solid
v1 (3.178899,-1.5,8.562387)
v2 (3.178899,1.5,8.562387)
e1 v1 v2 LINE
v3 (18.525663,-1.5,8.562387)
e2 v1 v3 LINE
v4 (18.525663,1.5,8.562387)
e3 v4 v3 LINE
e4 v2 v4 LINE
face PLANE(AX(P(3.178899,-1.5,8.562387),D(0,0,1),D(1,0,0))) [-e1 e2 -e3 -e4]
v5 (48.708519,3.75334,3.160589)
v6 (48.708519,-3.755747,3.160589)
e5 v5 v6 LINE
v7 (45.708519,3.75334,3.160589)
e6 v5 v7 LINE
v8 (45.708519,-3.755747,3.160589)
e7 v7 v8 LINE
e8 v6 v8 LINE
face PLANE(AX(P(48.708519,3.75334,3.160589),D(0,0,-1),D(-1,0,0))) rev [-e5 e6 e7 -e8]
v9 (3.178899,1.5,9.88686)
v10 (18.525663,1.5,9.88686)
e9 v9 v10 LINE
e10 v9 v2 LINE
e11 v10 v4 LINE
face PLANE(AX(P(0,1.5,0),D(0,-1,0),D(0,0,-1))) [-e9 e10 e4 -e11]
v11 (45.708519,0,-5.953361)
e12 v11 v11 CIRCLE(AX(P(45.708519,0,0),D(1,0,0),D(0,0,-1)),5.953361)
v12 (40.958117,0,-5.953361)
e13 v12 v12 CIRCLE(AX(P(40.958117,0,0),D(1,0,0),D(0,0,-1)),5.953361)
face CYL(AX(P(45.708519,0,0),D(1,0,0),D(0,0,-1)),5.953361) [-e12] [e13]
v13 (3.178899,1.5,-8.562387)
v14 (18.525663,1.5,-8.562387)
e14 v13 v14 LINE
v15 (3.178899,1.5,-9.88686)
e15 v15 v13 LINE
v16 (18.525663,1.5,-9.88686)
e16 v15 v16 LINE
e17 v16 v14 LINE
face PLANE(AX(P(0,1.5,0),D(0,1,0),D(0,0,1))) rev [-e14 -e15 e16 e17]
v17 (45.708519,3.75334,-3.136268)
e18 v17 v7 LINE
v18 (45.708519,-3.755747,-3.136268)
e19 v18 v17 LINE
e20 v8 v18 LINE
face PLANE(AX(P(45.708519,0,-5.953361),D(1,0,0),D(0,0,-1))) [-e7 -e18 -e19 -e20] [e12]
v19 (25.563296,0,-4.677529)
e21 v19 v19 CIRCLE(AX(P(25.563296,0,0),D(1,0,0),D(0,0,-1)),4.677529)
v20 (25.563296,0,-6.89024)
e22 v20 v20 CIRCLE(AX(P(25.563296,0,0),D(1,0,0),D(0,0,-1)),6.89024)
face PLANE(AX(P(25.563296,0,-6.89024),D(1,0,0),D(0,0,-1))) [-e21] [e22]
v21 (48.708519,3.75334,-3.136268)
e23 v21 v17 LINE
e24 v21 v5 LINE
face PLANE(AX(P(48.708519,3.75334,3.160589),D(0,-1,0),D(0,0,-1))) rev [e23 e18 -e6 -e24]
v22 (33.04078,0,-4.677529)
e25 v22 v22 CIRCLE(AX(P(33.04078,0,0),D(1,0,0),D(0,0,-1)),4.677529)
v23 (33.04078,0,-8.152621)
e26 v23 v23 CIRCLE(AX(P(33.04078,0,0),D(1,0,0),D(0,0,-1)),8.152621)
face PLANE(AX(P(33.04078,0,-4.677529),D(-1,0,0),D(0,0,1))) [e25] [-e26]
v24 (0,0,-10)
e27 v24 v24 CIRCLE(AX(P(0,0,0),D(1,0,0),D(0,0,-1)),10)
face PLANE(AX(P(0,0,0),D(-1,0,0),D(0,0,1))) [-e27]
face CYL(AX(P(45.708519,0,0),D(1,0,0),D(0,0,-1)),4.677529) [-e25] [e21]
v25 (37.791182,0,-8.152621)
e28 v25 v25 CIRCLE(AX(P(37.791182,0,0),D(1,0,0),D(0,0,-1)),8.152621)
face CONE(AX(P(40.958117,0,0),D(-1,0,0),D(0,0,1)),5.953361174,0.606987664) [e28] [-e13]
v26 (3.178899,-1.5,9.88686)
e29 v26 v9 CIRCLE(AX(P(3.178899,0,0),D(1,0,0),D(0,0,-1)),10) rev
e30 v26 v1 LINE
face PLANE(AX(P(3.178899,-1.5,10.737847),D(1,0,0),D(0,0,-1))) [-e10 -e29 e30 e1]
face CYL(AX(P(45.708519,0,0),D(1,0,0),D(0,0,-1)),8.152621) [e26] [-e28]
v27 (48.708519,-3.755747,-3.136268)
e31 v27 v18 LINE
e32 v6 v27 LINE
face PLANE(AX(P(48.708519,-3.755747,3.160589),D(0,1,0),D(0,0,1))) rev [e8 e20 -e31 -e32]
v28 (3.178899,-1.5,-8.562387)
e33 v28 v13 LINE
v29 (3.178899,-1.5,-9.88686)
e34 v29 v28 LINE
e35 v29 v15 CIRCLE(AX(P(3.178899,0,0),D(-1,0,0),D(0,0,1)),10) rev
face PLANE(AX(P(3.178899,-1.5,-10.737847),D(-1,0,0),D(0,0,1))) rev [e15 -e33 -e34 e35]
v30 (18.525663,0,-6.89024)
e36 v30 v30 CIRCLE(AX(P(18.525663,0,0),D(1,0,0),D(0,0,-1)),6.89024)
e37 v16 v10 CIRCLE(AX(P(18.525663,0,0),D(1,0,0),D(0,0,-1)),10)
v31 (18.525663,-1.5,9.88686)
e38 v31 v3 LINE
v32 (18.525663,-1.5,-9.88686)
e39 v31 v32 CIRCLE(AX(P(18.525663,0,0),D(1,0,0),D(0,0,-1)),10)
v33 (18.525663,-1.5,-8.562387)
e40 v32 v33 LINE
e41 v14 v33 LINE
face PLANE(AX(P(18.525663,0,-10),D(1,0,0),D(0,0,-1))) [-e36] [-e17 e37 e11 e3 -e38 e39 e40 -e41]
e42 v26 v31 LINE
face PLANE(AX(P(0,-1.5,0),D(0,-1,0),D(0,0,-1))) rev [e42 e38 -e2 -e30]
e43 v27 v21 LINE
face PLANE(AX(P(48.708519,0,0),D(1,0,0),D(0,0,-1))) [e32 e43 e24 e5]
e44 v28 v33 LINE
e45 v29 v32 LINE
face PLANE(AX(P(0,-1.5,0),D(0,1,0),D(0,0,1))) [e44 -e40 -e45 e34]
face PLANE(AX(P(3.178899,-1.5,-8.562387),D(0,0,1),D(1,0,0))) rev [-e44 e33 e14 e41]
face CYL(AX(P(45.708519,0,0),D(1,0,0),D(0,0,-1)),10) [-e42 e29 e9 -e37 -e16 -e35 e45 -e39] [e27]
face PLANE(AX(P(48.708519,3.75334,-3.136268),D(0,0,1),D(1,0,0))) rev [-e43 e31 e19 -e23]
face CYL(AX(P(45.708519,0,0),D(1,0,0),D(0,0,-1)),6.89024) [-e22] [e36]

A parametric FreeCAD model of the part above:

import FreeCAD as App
import Part
import Sketcher

V = App.Vector
Q = App.Units.Quantity

doc = App.newDocument("Part")
body = doc.addObject("PartDesign::Body", "Body")

sketch1 = body.newObject("Sketcher::SketchObject", "Sketch")
sketch1.AttachmentSupport = (doc.getObject("XZ_Plane"), [""])
sketch1.MapMode = "FlatFace"
sketch1.addGeometry([
    Part.LineSegment(V(0, -10, 0), V(0, 0, 0)),
    Part.LineSegment(V(0, 0, 0), V(45.7, 0, 0)),
    Part.LineSegment(V(45.7, 0, 0), V(45.7, -6, 0)),
    Part.LineSegment(V(45.7, -6, 0), V(41, -6, 0)),
    Part.LineSegment(V(41, -6, 0), V(37.8, -8.2, 0)),
    Part.LineSegment(V(37.8, -8.2, 0), V(33, -8.2, 0)),
    Part.LineSegment(V(33, -8.2, 0), V(33, -4.7, 0)),
    Part.LineSegment(V(33, -4.7, 0), V(25.6, -4.7, 0)),
    Part.LineSegment(V(25.6, -4.7, 0), V(25.6, -6.9, 0)),
    Part.LineSegment(V(25.6, -6.9, 0), V(18.5, -6.9, 0)),
    Part.LineSegment(V(18.5, -6.9, 0), V(18.5, -10, 0)),
    Part.LineSegment(V(18.5, -10, 0), V(0, -10, 0)),
], False)
sketch1.addConstraint([
    Sketcher.Constraint("Coincident", 0, 2, 1, 1),
    Sketcher.Constraint("Coincident", 1, 2, 2, 1),
    Sketcher.Constraint("Coincident", 2, 2, 3, 1),
    Sketcher.Constraint("Coincident", 3, 2, 4, 1),
    Sketcher.Constraint("Coincident", 4, 2, 5, 1),
    Sketcher.Constraint("Coincident", 5, 2, 6, 1),
    Sketcher.Constraint("Coincident", 6, 2, 7, 1),
    Sketcher.Constraint("Coincident", 7, 2, 8, 1),
    Sketcher.Constraint("Coincident", 8, 2, 9, 1),
    Sketcher.Constraint("Coincident", 9, 2, 10, 1),
    Sketcher.Constraint("Coincident", 10, 2, 11, 1),
    Sketcher.Constraint("Coincident", 11, 2, 0, 1),
    Sketcher.Constraint("Vertical", 0),
    Sketcher.Constraint("Horizontal", 1),
    Sketcher.Constraint("Vertical", 2),
    Sketcher.Constraint("Horizontal", 3),
    Sketcher.Constraint("Horizontal", 5),
    Sketcher.Constraint("Vertical", 6),
    Sketcher.Constraint("Horizontal", 7),
    Sketcher.Constraint("Vertical", 8),
    Sketcher.Constraint("Horizontal", 9),
    Sketcher.Constraint("Vertical", 10),
    Sketcher.Constraint("Horizontal", 11),
    Sketcher.Constraint("Coincident", 0, 2, -1, 1),
    Sketcher.Constraint("Equal", 3, 5),
    Sketcher.Constraint("DistanceY", 0, 1, 0, 2, Q("10 mm")),
    Sketcher.Constraint("DistanceX", 1, 1, 1, 2, Q("45.708519 mm")),
    Sketcher.Constraint("DistanceY", 2, 2, 2, 1, Q("5.953361 mm")),
    Sketcher.Constraint("DistanceY", 8, 2, 8, 1, Q("2.212712 mm")),
    Sketcher.Constraint("DistanceY", 10, 2, 10, 1, Q("3.10976 mm")),
    Sketcher.Constraint("DistanceX", 3, 2, 3, 1, Q("4.750402 mm")),
    Sketcher.Constraint("DistanceX", 7, 2, 7, 1, Q("7.477485 mm")),
    Sketcher.Constraint("DistanceX", 9, 2, 9, 1, Q("7.037633 mm")),
    Sketcher.Constraint("DistanceX", 11, 2, 11, 1, Q("18.525663 mm")),
    Sketcher.Constraint("DistanceY", 6, 1, 6, 2, Q("3.475093 mm")),
])
revolution = body.newObject("PartDesign::Revolution", "Revolution")
revolution.Profile = sketch1
revolution.ReferenceAxis = (sketch1, ["H_Axis"])
revolution.Angle = 360

sketch2 = body.newObject("Sketcher::SketchObject", "Sketch001")
sketch2.AttachmentSupport = (doc.getObject("XZ_Plane"), [""])
sketch2.MapMode = "FlatFace"
sketch2.addGeometry([
    Part.LineSegment(V(3.2, -10.7, 0), V(3.2, -8.6, 0)),
    Part.LineSegment(V(3.2, -8.6, 0), V(21.1, -8.6, 0)),
    Part.LineSegment(V(21.1, -8.6, 0), V(21.1, -10.7, 0)),
    Part.LineSegment(V(21.1, -10.7, 0), V(3.2, -10.7, 0)),
    Part.LineSegment(V(3.2, 8.6, 0), V(3.2, 10.7, 0)),
    Part.LineSegment(V(3.2, 10.7, 0), V(21.1, 10.7, 0)),
    Part.LineSegment(V(21.1, 10.7, 0), V(21.1, 8.6, 0)),
    Part.LineSegment(V(21.1, 8.6, 0), V(3.2, 8.6, 0)),
], False)
sketch2.addConstraint([
    Sketcher.Constraint("Coincident", 0, 2, 1, 1),
    Sketcher.Constraint("Coincident", 1, 2, 2, 1),
    Sketcher.Constraint("Coincident", 2, 2, 3, 1),
    Sketcher.Constraint("Coincident", 3, 2, 0, 1),
    Sketcher.Constraint("Coincident", 4, 2, 5, 1),
    Sketcher.Constraint("Coincident", 5, 2, 6, 1),
    Sketcher.Constraint("Coincident", 6, 2, 7, 1),
    Sketcher.Constraint("Coincident", 7, 2, 4, 1),
    Sketcher.Constraint("Vertical", 0),
    Sketcher.Constraint("Horizontal", 1),
    Sketcher.Constraint("Vertical", 2),
    Sketcher.Constraint("Horizontal", 3),
    Sketcher.Constraint("Vertical", 4),
    Sketcher.Constraint("Horizontal", 5),
    Sketcher.Constraint("Vertical", 6),
    Sketcher.Constraint("Horizontal", 7),
    Sketcher.Constraint("Symmetric", 3, 2, 4, 2, -1),
    Sketcher.Constraint("Symmetric", 1, 2, 6, 2, -1),
    Sketcher.Constraint("DistanceX", 1, 1, 1, 2, Q("17.886691 mm")),
    Sketcher.Constraint("DistanceY", 0, 1, 0, 2, Q("2.17546 mm")),
    Sketcher.Constraint("DistanceX", -1, 1, 0, 2, Q("3.178899 mm")),
    Sketcher.Constraint("DistanceY", 0, 2, -1, 1, Q("8.562387 mm")),
])
pocket1 = body.newObject("PartDesign::Pocket", "Pocket")
pocket1.Profile = sketch2
pocket1.Length = 3
pocket1.Midplane = True

sketch3 = body.newObject("Sketcher::SketchObject", "Sketch002")
sketch3.AttachmentSupport = (doc.getObject("YZ_Plane"), [""])
sketch3.MapMode = "FlatFace"
sketch3.AttachmentOffset = App.Placement(V(0, 0, 45.708519), App.Rotation())
sketch3.addGeometry([
    Part.LineSegment(V(4, 3, 0), V(-4, 3, 0)),
    Part.LineSegment(V(-4, 3, 0), V(-4, -3, 0)),
    Part.LineSegment(V(-4, -3, 0), V(4, -3, 0)),
    Part.LineSegment(V(4, -3, 0), V(4, 3, 0)),
], False)
sketch3.addConstraint([
    Sketcher.Constraint("Coincident", 0, 2, 1, 1),
    Sketcher.Constraint("Coincident", 1, 2, 2, 1),
    Sketcher.Constraint("Coincident", 2, 2, 3, 1),
    Sketcher.Constraint("Coincident", 3, 2, 0, 1),
    Sketcher.Constraint("Horizontal", 0),
    Sketcher.Constraint("Vertical", 1),
    Sketcher.Constraint("Horizontal", 2),
    Sketcher.Constraint("Vertical", 3),
    Sketcher.Constraint("DistanceX", 0, 2, 0, 1, Q("7.509087 mm")),
    Sketcher.Constraint("DistanceY", 1, 2, 1, 1, Q("6.296857 mm")),
    Sketcher.Constraint("DistanceY", -1, 1, 0, 2, Q("3.160589 mm")),
    Sketcher.Constraint("DistanceX", -1, 1, 2, 2, Q("3.75334 mm")),
])
pad1 = body.newObject("PartDesign::Pad", "Pad")
pad1.Profile = sketch3
pad1.Length = 3

doc.recompute()
